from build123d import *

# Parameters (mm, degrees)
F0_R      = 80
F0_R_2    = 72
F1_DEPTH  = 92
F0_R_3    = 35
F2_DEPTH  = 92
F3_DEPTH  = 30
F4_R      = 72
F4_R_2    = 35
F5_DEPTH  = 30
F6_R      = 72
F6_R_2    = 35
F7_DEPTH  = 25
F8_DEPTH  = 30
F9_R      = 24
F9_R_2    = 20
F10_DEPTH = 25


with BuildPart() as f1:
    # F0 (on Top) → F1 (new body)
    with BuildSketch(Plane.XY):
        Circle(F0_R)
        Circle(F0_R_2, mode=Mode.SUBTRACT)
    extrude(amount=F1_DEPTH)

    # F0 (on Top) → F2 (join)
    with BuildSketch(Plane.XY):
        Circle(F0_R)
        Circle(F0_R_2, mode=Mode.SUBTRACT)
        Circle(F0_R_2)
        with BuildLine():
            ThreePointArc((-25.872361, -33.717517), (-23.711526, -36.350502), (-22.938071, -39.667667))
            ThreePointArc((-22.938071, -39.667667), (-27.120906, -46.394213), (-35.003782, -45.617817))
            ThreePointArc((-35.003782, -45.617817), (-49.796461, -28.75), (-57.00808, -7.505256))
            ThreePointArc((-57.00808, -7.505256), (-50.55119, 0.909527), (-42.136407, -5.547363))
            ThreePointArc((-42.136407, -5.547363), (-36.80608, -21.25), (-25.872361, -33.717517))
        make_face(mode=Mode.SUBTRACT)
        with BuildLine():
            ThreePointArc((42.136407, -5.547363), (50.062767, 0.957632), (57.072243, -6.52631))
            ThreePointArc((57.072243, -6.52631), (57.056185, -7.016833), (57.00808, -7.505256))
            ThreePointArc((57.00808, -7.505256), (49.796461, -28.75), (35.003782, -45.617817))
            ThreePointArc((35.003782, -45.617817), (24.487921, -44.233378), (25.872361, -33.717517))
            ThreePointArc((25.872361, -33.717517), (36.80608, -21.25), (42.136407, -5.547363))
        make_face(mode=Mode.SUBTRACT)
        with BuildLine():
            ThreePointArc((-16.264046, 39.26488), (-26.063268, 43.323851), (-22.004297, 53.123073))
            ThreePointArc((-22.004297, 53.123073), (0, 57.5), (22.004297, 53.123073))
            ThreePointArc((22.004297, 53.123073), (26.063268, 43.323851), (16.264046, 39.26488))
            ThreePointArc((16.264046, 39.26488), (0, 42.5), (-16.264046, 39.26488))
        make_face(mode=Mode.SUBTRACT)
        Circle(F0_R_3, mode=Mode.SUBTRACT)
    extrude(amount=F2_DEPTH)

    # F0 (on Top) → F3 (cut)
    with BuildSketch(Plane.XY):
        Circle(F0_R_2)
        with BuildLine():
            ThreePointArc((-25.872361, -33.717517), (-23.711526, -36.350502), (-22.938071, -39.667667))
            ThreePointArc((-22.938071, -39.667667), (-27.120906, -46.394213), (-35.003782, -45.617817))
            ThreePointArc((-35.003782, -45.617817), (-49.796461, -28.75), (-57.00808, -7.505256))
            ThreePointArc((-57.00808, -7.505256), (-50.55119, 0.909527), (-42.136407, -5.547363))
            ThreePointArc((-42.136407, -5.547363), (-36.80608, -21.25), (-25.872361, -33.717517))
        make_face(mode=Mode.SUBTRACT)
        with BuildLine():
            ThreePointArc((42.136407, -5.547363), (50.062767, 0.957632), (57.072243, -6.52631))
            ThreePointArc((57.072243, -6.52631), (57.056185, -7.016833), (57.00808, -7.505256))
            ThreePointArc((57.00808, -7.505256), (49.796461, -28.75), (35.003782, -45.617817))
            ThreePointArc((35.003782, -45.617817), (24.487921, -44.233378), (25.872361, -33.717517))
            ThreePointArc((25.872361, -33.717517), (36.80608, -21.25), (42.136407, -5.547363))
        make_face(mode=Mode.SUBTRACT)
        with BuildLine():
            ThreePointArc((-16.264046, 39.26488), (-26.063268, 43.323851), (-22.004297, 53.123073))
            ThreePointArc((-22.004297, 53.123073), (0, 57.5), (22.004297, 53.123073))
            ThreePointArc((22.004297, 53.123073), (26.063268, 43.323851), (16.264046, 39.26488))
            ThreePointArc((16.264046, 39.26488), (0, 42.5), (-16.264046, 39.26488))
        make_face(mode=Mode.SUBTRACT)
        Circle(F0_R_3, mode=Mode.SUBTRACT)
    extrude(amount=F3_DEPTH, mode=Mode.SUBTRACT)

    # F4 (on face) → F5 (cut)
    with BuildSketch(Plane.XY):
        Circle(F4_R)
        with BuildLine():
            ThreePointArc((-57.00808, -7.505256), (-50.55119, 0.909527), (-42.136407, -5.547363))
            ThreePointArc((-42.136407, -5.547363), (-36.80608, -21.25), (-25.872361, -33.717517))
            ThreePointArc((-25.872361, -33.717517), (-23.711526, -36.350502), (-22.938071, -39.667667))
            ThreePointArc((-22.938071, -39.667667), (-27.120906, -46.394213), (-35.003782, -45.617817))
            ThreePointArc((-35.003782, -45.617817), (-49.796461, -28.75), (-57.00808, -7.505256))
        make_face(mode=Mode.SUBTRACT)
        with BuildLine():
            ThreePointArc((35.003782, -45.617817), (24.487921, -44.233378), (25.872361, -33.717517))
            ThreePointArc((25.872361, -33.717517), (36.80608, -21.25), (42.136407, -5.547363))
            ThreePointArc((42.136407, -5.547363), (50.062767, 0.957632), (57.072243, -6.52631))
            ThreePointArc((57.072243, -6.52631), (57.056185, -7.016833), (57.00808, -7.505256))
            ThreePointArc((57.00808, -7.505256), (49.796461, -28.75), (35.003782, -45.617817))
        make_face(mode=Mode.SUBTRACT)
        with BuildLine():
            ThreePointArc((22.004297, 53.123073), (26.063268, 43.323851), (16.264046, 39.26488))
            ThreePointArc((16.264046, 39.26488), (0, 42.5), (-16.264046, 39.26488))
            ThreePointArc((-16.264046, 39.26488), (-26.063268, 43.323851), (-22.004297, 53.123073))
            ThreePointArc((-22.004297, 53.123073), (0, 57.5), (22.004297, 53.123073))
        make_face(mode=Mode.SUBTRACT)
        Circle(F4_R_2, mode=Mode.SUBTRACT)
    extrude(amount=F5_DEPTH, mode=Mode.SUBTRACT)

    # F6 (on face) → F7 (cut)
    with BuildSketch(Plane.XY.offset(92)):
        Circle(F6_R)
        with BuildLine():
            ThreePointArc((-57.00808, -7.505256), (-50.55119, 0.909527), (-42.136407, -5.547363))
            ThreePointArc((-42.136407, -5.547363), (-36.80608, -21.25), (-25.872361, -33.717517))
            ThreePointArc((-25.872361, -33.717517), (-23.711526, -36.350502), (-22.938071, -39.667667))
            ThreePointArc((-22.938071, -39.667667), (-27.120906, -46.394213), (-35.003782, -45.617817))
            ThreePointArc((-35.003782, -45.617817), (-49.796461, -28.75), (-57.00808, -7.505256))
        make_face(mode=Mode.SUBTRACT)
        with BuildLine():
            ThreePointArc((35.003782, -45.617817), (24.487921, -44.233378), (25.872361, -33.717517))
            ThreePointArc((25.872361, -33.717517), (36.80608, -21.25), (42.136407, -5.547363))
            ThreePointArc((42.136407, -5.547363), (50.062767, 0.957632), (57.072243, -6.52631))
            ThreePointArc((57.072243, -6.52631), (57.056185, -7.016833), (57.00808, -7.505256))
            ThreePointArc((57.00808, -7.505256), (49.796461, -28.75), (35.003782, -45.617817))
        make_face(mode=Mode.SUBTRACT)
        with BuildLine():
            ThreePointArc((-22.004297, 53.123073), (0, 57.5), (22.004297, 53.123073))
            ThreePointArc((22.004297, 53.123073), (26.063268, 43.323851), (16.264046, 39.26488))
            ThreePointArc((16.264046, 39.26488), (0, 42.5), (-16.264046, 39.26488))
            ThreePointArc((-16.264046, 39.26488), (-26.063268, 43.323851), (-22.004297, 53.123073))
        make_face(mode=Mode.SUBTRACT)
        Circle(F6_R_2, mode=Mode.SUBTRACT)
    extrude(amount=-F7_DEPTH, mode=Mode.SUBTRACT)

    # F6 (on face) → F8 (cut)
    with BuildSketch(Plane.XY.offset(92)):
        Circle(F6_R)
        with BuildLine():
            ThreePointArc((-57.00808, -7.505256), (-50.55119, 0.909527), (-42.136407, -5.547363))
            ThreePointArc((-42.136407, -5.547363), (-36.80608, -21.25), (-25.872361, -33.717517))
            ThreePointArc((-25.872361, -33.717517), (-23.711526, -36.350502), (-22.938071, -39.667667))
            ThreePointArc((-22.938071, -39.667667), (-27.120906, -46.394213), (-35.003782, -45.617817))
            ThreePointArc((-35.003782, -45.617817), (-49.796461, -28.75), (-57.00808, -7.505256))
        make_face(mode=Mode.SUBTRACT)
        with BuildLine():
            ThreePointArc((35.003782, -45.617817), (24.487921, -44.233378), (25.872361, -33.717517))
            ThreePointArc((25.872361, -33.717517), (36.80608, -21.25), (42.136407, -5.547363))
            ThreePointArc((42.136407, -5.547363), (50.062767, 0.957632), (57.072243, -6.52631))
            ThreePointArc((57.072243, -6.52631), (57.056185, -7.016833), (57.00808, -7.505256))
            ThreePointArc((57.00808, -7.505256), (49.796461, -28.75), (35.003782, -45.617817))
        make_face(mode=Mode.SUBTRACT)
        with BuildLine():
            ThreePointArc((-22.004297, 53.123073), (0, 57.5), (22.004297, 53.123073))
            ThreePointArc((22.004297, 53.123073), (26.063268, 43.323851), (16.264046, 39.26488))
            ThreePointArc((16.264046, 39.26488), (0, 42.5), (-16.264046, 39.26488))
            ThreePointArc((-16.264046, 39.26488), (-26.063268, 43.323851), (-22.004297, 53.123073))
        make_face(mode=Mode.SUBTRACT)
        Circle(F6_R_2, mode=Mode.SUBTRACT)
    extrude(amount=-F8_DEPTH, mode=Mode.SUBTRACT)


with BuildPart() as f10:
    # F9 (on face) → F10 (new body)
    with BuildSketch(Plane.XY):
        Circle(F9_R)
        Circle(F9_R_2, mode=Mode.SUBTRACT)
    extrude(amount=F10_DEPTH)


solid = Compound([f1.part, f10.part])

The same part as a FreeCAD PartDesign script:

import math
import FreeCAD as App
import Part
import Sketcher

doc = App.newDocument("Part")
body = doc.addObject("PartDesign::Body", "Body")

# Sketch on XY plane
sketch1 = body.newObject("Sketcher::SketchObject", "Sketch")
sketch1.AttachmentSupport = (doc.getObject("XY_Plane"), [""])
sketch1.MapMode = "FlatFace"
sketch1.addGeometry(Part.Circle(App.Vector(0, 0, 0), App.Vector(0, 0, 1), 80), False)
sketch1.addGeometry(Part.Circle(App.Vector(0, 0, 0), App.Vector(0, 0, 1), 72), False)
sketch1.addConstraint(Sketcher.Constraint("Coincident", 0, 3, -1, 1))
sketch1.addConstraint(Sketcher.Constraint("Coincident", 1, 3, -1, 1))
sketch1.addConstraint(Sketcher.Constraint("Diameter", 0, 160.0))
sketch1.addConstraint(Sketcher.Constraint("Diameter", 1, 144.0))
pad1 = body.newObject("PartDesign::Pad", "Pad")
pad1.Profile = sketch1
pad1.Length = 92

# Sketch on XY plane
sketch2 = body.newObject("Sketcher::SketchObject", "Sketch001")
sketch2.AttachmentSupport = (doc.getObject("XY_Plane"), [""])
sketch2.MapMode = "FlatFace"
sketch2.addGeometry(Part.Circle(App.Vector(0, 0, 0), App.Vector(0, 0, 1), 80), False)
sketch2.addGeometry(Part.ArcOfCircle(Part.Circle(App.Vector(0, 0, 0), App.Vector(0, 0, 1), 42.5), math.radians(-172.5), math.radians(-127.5)), False)
sketch2.addGeometry(Part.ArcOfCircle(Part.Circle(App.Vector(-30.438074, -39.667669, 0), App.Vector(0, 0, 1), 7.500003), math.radians(0.000015), math.radians(52.499997)), False)
sketch2.addGeometry(Part.ArcOfCircle(Part.Circle(App.Vector(-30.438071, -39.667667, 0), App.Vector(0, 0, 1), 7.5), math.radians(-127.500005), math.radians(0.000003)), False)
sketch2.addGeometry(Part.ArcOfCircle(Part.Circle(App.Vector(-0.000001, 0, 0), App.Vector(0, 0, 1), 57.499999), math.radians(-172.5), math.radians(-127.499999)), False)
sketch2.addGeometry(Part.ArcOfCircle(Part.Circle(App.Vector(-49.572243, -6.526309, 0), App.Vector(0, 0, 1), 7.5), math.radians(7.5), math.radians(187.5)), False)
sketch2.addGeometry(Part.ArcOfCircle(Part.Circle(App.Vector(0, 0, 0), App.Vector(0, 0, 1), 42.5), math.radians(-52.5), math.radians(-7.5)), False)
sketch2.addGeometry(Part.ArcOfCircle(Part.Circle(App.Vector(49.572243, -6.52631, 0), App.Vector(0, 0, 1), 7.5), math.radians(-0.000002), math.radians(172.499998)), False)
sketch2.addGeometry(Part.ArcOfCircle(Part.Circle(App.Vector(49.572152, -6.526308, 0), App.Vector(0, 0, 1), 7.500091), math.radians(-7.499923), math.radians(-0.000017)), False)
sketch2.addGeometry(Part.ArcOfCircle(Part.Circle(App.Vector(0.000001, 0, 0), App.Vector(0, 0, 1), 57.499999), math.radians(-52.500001), math.radians(-7.5)), False)
sketch2.addGeometry(Part.ArcOfCircle(Part.Circle(App.Vector(30.438071, -39.667667, 0), App.Vector(0, 0, 1), 7.5), math.radians(127.499994), math.radians(307.500004)), False)
sketch2.addGeometry(Part.Circle(App.Vector(0, 0, 0), App.Vector(0, 0, 1), 35), False)
sketch2.addGeometry(Part.ArcOfCircle(Part.Circle(App.Vector(0, 0.000001, 0), App.Vector(0, 0, 1), 42.499999), math.radians(67.499999), math.radians(112.500001)), False)
sketch2.addGeometry(Part.ArcOfCircle(Part.Circle(App.Vector(-19.134172, 46.193976, 0), App.Vector(0, 0, 1), 7.5), math.radians(112.499998), math.radians(292.499998)), False)
sketch2.addGeometry(Part.ArcOfCircle(Part.Circle(App.Vector(0, 0.000003, 0), App.Vector(0, 0, 1), 57.499997), math.radians(67.499999), math.radians(112.500001)), False)
sketch2.addGeometry(Part.ArcOfCircle(Part.Circle(App.Vector(19.134172, 46.193976, 0), App.Vector(0, 0, 1), 7.5), math.radians(-112.499998), math.radians(67.500002)), False)
sketch2.addConstraint(Sketcher.Constraint("Coincident", 1, 2, 2, 2))
sketch2.addConstraint(Sketcher.Constraint("Coincident", 2, 1, 3, 2))
sketch2.addConstraint(Sketcher.Constraint("Coincident", 3, 1, 4, 2))
sketch2.addConstraint(Sketcher.Constraint("Coincident", 4, 1, 5, 2))
sketch2.addConstraint(Sketcher.Constraint("Coincident", 5, 1, 1, 1))
sketch2.addConstraint(Sketcher.Constraint("Coincident", 6, 2, 7, 2))
sketch2.addConstraint(Sketcher.Constraint("Coincident", 7, 1, 8, 2))
sketch2.addConstraint(Sketcher.Constraint("Coincident", 8, 1, 9, 2))
sketch2.addConstraint(Sketcher.Constraint("Coincident", 9, 1, 10, 2))
sketch2.addConstraint(Sketcher.Constraint("Coincident", 10, 1, 6, 1))
sketch2.addConstraint(Sketcher.Constraint("Coincident", 12, 2, 13, 2))
sketch2.addConstraint(Sketcher.Constraint("Coincident", 13, 1, 14, 2))
sketch2.addConstraint(Sketcher.Constraint("Coincident", 14, 1, 15, 2))
sketch2.addConstraint(Sketcher.Constraint("Coincident", 15, 1, 12, 1))
sketch2.addConstraint(Sketcher.Constraint("Coincident", 0, 3, -1, 1))
sketch2.addConstraint(Sketcher.Constraint("Coincident", 1, 3, -1, 1))
sketch2.addConstraint(Sketcher.Constraint("Coincident", 4, 3, -1, 1))
sketch2.addConstraint(Sketcher.Constraint("Coincident", 6, 3, -1, 1))
sketch2.addConstraint(Sketcher.Constraint("Coincident", 9, 3, -1, 1))
sketch2.addConstraint(Sketcher.Constraint("Coincident", 11, 3, -1, 1))
sketch2.addConstraint(Sketcher.Constraint("Coincident", 12, 3, -1, 1))
sketch2.addConstraint(Sketcher.Constraint("Coincident", 14, 3, -1, 1))
sketch2.addConstraint(Sketcher.Constraint("Coincident", 3, 3, 2, 3))
sketch2.addConstraint(Sketcher.Constraint("Diameter", 0, 160.0))
sketch2.addConstraint(Sketcher.Constraint("Diameter", 11, 70.0))
sketch2.addConstraint(Sketcher.Constraint("Radius", 1, 42.5))
sketch2.addConstraint(Sketcher.Constraint("Radius", 3, 7.5))
sketch2.addConstraint(Sketcher.Constraint("Radius", 6, 42.5))
sketch2.addConstraint(Sketcher.Constraint("Radius", 7, 7.5))
sketch2.addConstraint(Sketcher.Constraint("Radius", 9, 57.499999))
sketch2.addConstraint(Sketcher.Constraint("Radius", 12, 42.499999))
sketch2.addConstraint(Sketcher.Constraint("Radius", 13, 7.5))
sketch2.addConstraint(Sketcher.Constraint("Radius", 8, 7.500091))
sketch2.addConstraint(Sketcher.Constraint("DistanceY", 3, 1, 1, 2, 11.9003))
sketch2.addConstraint(Sketcher.Constraint("DistanceX", 9, 1, 8, 1, 22.004298))
sketch2.addConstraint(Sketcher.Constraint("DistanceY", 9, 1, 10, 1, 11.9003))
sketch2.addConstraint(Sketcher.Constraint("DistanceY", 2, 3, -1, 1, 39.667669))
sketch2.addConstraint(Sketcher.Constraint("DistanceY", 5, 3, -1, 1, 6.526309))
sketch2.addConstraint(Sketcher.Constraint("DistanceY", 7, 3, -1, 1, 6.52631))
sketch2.addConstraint(Sketcher.Constraint("DistanceX", -1, 1, 10, 3, 30.438071))
sketch2.addConstraint(Sketcher.Constraint("DistanceX", 13, 3, -1, 1, 19.134172))
sketch2.addConstraint(Sketcher.Constraint("DistanceX", -1, 1, 15, 3, 19.134172))
sketch2.addConstraint(Sketcher.Constraint("DistanceX", 1, 2, -1, 1, 25.872361))
sketch2.addConstraint(Sketcher.Constraint("DistanceX", 4, 1, -1, 1, 57.00808))
sketch2.addConstraint(Sketcher.Constraint("DistanceY", 7, 1, -1, 1, 6.52631))
sketch2.addConstraint(Sketcher.Constraint("DistanceX", -1, 1, 8, 1, 57.00808))
sketch2.addConstraint(Sketcher.Constraint("DistanceY", -1, 1, 12, 2, 39.26488))
sketch2.addConstraint(Sketcher.Constraint("DistanceY", -1, 1, 15, 1, 39.26488))
sketch2.addConstraint(Sketcher.Constraint("DistanceY", 2, 1, 1, 2, 5.95015))
sketch2.addConstraint(Sketcher.Constraint("DistanceX", 13, 1, 12, 2, 5.740251))
sketch2.addConstraint(Sketcher.Constraint("DistanceX", 13, 3, 14, 1, 41.138468))
sketch2.addConstraint(Sketcher.Constraint("DistanceX", 5, 1, -1, 1, 42.136407))
sketch2.addConstraint(Sketcher.Constraint("DistanceX", -1, 1, 6, 2, 42.136407))
pad2 = body.newObject("PartDesign::Pad", "Pad001")
pad2.Profile = sketch2
pad2.Length = 92

# Sketch on XY plane
sketch3 = body.newObject("Sketcher::SketchObject", "Sketch002")
sketch3.AttachmentSupport = (doc.getObject("XY_Plane"), [""])
sketch3.MapMode = "FlatFace"
sketch3.addGeometry(Part.Circle(App.Vector(0, 0, 0), App.Vector(0, 0, 1), 72), False)
sketch3.addGeometry(Part.ArcOfCircle(Part.Circle(App.Vector(0, 0, 0), App.Vector(0, 0, 1), 42.5), math.radians(-172.5), math.radians(-127.5)), False)
sketch3.addGeometry(Part.ArcOfCircle(Part.Circle(App.Vector(-30.438074, -39.667669, 0), App.Vector(0, 0, 1), 7.500003), math.radians(0.000015), math.radians(52.499997)), False)
sketch3.addGeometry(Part.ArcOfCircle(Part.Circle(App.Vector(-30.438071, -39.667667, 0), App.Vector(0, 0, 1), 7.5), math.radians(-127.500005), math.radians(0.000003)), False)
sketch3.addGeometry(Part.ArcOfCircle(Part.Circle(App.Vector(-0.000001, 0, 0), App.Vector(0, 0, 1), 57.499999), math.radians(-172.5), math.radians(-127.499999)), False)
sketch3.addGeometry(Part.ArcOfCircle(Part.Circle(App.Vector(-49.572243, -6.526309, 0), App.Vector(0, 0, 1), 7.5), math.radians(7.5), math.radians(187.5)), False)
sketch3.addGeometry(Part.ArcOfCircle(Part.Circle(App.Vector(0, 0, 0), App.Vector(0, 0, 1), 42.5), math.radians(-52.5), math.radians(-7.5)), False)
sketch3.addGeometry(Part.ArcOfCircle(Part.Circle(App.Vector(49.572243, -6.52631, 0), App.Vector(0, 0, 1), 7.5), math.radians(-0.000002), math.radians(172.499998)), False)
sketch3.addGeometry(Part.ArcOfCircle(Part.Circle(App.Vector(49.572152, -6.526308, 0), App.Vector(0, 0, 1), 7.500091), math.radians(-7.499923), math.radians(-0.000017)), False)
sketch3.addGeometry(Part.ArcOfCircle(Part.Circle(App.Vector(0.000001, 0, 0), App.Vector(0, 0, 1), 57.499999), math.radians(-52.500001), math.radians(-7.5)), False)
sketch3.addGeometry(Part.ArcOfCircle(Part.Circle(App.Vector(30.438071, -39.667667, 0), App.Vector(0, 0, 1), 7.5), math.radians(127.499994), math.radians(307.500004)), False)
sketch3.addGeometry(Part.Circle(App.Vector(0, 0, 0), App.Vector(0, 0, 1), 35), False)
sketch3.addGeometry(Part.ArcOfCircle(Part.Circle(App.Vector(0, 0.000001, 0), App.Vector(0, 0, 1), 42.499999), math.radians(67.499999), math.radians(112.500001)), False)
sketch3.addGeometry(Part.ArcOfCircle(Part.Circle(App.Vector(-19.134172, 46.193976, 0), App.Vector(0, 0, 1), 7.5), math.radians(112.499998), math.radians(292.499998)), False)
sketch3.addGeometry(Part.ArcOfCircle(Part.Circle(App.Vector(0, 0.000003, 0), App.Vector(0, 0, 1), 57.499997), math.radians(67.499999), math.radians(112.500001)), False)
sketch3.addGeometry(Part.ArcOfCircle(Part.Circle(App.Vector(19.134172, 46.193976, 0), App.Vector(0, 0, 1), 7.5), math.radians(-112.499998), math.radians(67.500002)), False)
sketch3.addConstraint(Sketcher.Constraint("Coincident", 1, 2, 2, 2))
sketch3.addConstraint(Sketcher.Constraint("Coincident", 2, 1, 3, 2))
sketch3.addConstraint(Sketcher.Constraint("Coincident", 3, 1, 4, 2))
sketch3.addConstraint(Sketcher.Constraint("Coincident", 4, 1, 5, 2))
sketch3.addConstraint(Sketcher.Constraint("Coincident", 5, 1, 1, 1))
sketch3.addConstraint(Sketcher.Constraint("Coincident", 6, 2, 7, 2))
sketch3.addConstraint(Sketcher.Constraint("Coincident", 7, 1, 8, 2))
sketch3.addConstraint(Sketcher.Constraint("Coincident", 8, 1, 9, 2))
sketch3.addConstraint(Sketcher.Constraint("Coincident", 9, 1, 10, 2))
sketch3.addConstraint(Sketcher.Constraint("Coincident", 10, 1, 6, 1))
sketch3.addConstraint(Sketcher.Constraint("Coincident", 12, 2, 13, 2))
sketch3.addConstraint(Sketcher.Constraint("Coincident", 13, 1, 14, 2))
sketch3.addConstraint(Sketcher.Constraint("Coincident", 14, 1, 15, 2))
sketch3.addConstraint(Sketcher.Constraint("Coincident", 15, 1, 12, 1))
sketch3.addConstraint(Sketcher.Constraint("Coincident", 0, 3, -1, 1))
sketch3.addConstraint(Sketcher.Constraint("Coincident", 1, 3, -1, 1))
sketch3.addConstraint(Sketcher.Constraint("Coincident", 4, 3, -1, 1))
sketch3.addConstraint(Sketcher.Constraint("Coincident", 6, 3, -1, 1))
sketch3.addConstraint(Sketcher.Constraint("Coincident", 9, 3, -1, 1))
sketch3.addConstraint(Sketcher.Constraint("Coincident", 11, 3, -1, 1))
sketch3.addConstraint(Sketcher.Constraint("Coincident", 12, 3, -1, 1))
sketch3.addConstraint(Sketcher.Constraint("Coincident", 14, 3, -1, 1))
sketch3.addConstraint(Sketcher.Constraint("Coincident", 3, 3, 2, 3))
sketch3.addConstraint(Sketcher.Constraint("Diameter", 0, 144.0))
sketch3.addConstraint(Sketcher.Constraint("Diameter", 11, 70.0))
sketch3.addConstraint(Sketcher.Constraint("Radius", 1, 42.5))
sketch3.addConstraint(Sketcher.Constraint("Radius", 3, 7.5))
sketch3.addConstraint(Sketcher.Constraint("Radius", 6, 42.5))
sketch3.addConstraint(Sketcher.Constraint("Radius", 7, 7.5))
sketch3.addConstraint(Sketcher.Constraint("Radius", 9, 57.499999))
sketch3.addConstraint(Sketcher.Constraint("Radius", 12, 42.499999))
sketch3.addConstraint(Sketcher.Constraint("Radius", 13, 7.5))
sketch3.addConstraint(Sketcher.Constraint("Radius", 8, 7.500091))
sketch3.addConstraint(Sketcher.Constraint("DistanceY", 3, 1, 1, 2, 11.9003))
sketch3.addConstraint(Sketcher.Constraint("DistanceX", 9, 1, 8, 1, 22.004298))
sketch3.addConstraint(Sketcher.Constraint("DistanceY", 9, 1, 10, 1, 11.9003))
sketch3.addConstraint(Sketcher.Constraint("DistanceY", 2, 3, -1, 1, 39.667669))
sketch3.addConstraint(Sketcher.Constraint("DistanceY", 5, 3, -1, 1, 6.526309))
sketch3.addConstraint(Sketcher.Constraint("DistanceY", 7, 3, -1, 1, 6.52631))
sketch3.addConstraint(Sketcher.Constraint("DistanceX", -1, 1, 10, 3, 30.438071))
sketch3.addConstraint(Sketcher.Constraint("DistanceX", 13, 3, -1, 1, 19.134172))
sketch3.addConstraint(Sketcher.Constraint("DistanceX", -1, 1, 15, 3, 19.134172))
sketch3.addConstraint(Sketcher.Constraint("DistanceX", 1, 2, -1, 1, 25.872361))
sketch3.addConstraint(Sketcher.Constraint("DistanceX", 4, 1, -1, 1, 57.00808))
sketch3.addConstraint(Sketcher.Constraint("DistanceY", 7, 1, -1, 1, 6.52631))
sketch3.addConstraint(Sketcher.Constraint("DistanceX", -1, 1, 8, 1, 57.00808))
sketch3.addConstraint(Sketcher.Constraint("DistanceY", -1, 1, 12, 2, 39.26488))
sketch3.addConstraint(Sketcher.Constraint("DistanceY", -1, 1, 15, 1, 39.26488))
sketch3.addConstraint(Sketcher.Constraint("DistanceY", 2, 1, 1, 2, 5.95015))
sketch3.addConstraint(Sketcher.Constraint("DistanceX", 13, 1, 12, 2, 5.740251))
sketch3.addConstraint(Sketcher.Constraint("DistanceX", 13, 3, 14, 1, 41.138468))
sketch3.addConstraint(Sketcher.Constraint("DistanceX", 5, 1, -1, 1, 42.136407))
sketch3.addConstraint(Sketcher.Constraint("DistanceX", -1, 1, 6, 2, 42.136407))
pocket1 = body.newObject("PartDesign::Pocket", "Pocket")
pocket1.Profile = sketch3
pocket1.Length = 30
pocket1.Reversed = True

# Sketch on XY plane
sketch4 = body.newObject("Sketcher::SketchObject", "Sketch003")
sketch4.AttachmentSupport = (doc.getObject("XY_Plane"), [""])
sketch4.MapMode = "FlatFace"
sketch4.addGeometry(Part.Circle(App.Vector(0, 0, 0), App.Vector(0, 0, 1), 72), False)
sketch4.addGeometry(Part.ArcOfCircle(Part.Circle(App.Vector(-0.000001, 0, 0), App.Vector(0, 0, 1), 57.499999), math.radians(-172.5), math.radians(-127.499999)), False)
sketch4.addGeometry(Part.ArcOfCircle(Part.Circle(App.Vector(-49.572243, -6.526309, 0), App.Vector(0, 0, 1), 7.5), math.radians(7.5), math.radians(187.5)), False)
sketch4.addGeometry(Part.ArcOfCircle(Part.Circle(App.Vector(0, 0, 0), App.Vector(0, 0, 1), 42.5), math.radians(-172.5), math.radians(-127.5)), False)
sketch4.addGeometry(Part.ArcOfCircle(Part.Circle(App.Vector(-30.438074, -39.667669, 0), App.Vector(0, 0, 1), 7.500003), math.radians(0.000015), math.radians(52.499997)), False)
sketch4.addGeometry(Part.ArcOfCircle(Part.Circle(App.Vector(-30.438071, -39.667667, 0), App.Vector(0, 0, 1), 7.5), math.radians(-127.500005), math.radians(0.000003)), False)
sketch4.addGeometry(Part.ArcOfCircle(Part.Circle(App.Vector(0.000001, 0, 0), App.Vector(0, 0, 1), 57.499999), math.radians(-52.500001), math.radians(-7.5)), False)
sketch4.addGeometry(Part.ArcOfCircle(Part.Circle(App.Vector(30.438071, -39.667667, 0), App.Vector(0, 0, 1), 7.5), math.radians(127.499994), math.radians(307.500004)), False)
sketch4.addGeometry(Part.ArcOfCircle(Part.Circle(App.Vector(0, 0, 0), App.Vector(0, 0, 1), 42.5), math.radians(-52.5), math.radians(-7.5)), False)
sketch4.addGeometry(Part.ArcOfCircle(Part.Circle(App.Vector(49.572243, -6.52631, 0), App.Vector(0, 0, 1), 7.5), math.radians(-0.000002), math.radians(172.499998)), False)
sketch4.addGeometry(Part.ArcOfCircle(Part.Circle(App.Vector(49.572152, -6.526308, 0), App.Vector(0, 0, 1), 7.500091), math.radians(-7.499923), math.radians(-0.000017)), False)
sketch4.addGeometry(Part.Circle(App.Vector(0, 0, 0), App.Vector(0, 0, 1), 35), False)
sketch4.addGeometry(Part.ArcOfCircle(Part.Circle(App.Vector(0, 0.000003, 0), App.Vector(0, 0, 1), 57.499997), math.radians(67.499999), math.radians(112.500001)), False)
sketch4.addGeometry(Part.ArcOfCircle(Part.Circle(App.Vector(19.134172, 46.193976, 0), App.Vector(0, 0, 1), 7.5), math.radians(-112.499998), math.radians(67.500002)), False)
sketch4.addGeometry(Part.ArcOfCircle(Part.Circle(App.Vector(0, 0.000001, 0), App.Vector(0, 0, 1), 42.499999), math.radians(67.499999), math.radians(112.500001)), False)
sketch4.addGeometry(Part.ArcOfCircle(Part.Circle(App.Vector(-19.134172, 46.193976, 0), App.Vector(0, 0, 1), 7.5), math.radians(112.499998), math.radians(292.499998)), False)
sketch4.addConstraint(Sketcher.Constraint("Coincident", 1, 1, 2, 2))
sketch4.addConstraint(Sketcher.Constraint("Coincident", 2, 1, 3, 1))
sketch4.addConstraint(Sketcher.Constraint("Coincident", 3, 2, 4, 2))
sketch4.addConstraint(Sketcher.Constraint("Coincident", 4, 1, 5, 2))
sketch4.addConstraint(Sketcher.Constraint("Coincident", 5, 1, 1, 2))
sketch4.addConstraint(Sketcher.Constraint("Coincident", 6, 1, 7, 2))
sketch4.addConstraint(Sketcher.Constraint("Coincident", 7, 1, 8, 1))
sketch4.addConstraint(Sketcher.Constraint("Coincident", 8, 2, 9, 2))
sketch4.addConstraint(Sketcher.Constraint("Coincident", 9, 1, 10, 2))
sketch4.addConstraint(Sketcher.Constraint("Coincident", 10, 1, 6, 2))
sketch4.addConstraint(Sketcher.Constraint("Coincident", 12, 1, 13, 2))
sketch4.addConstraint(Sketcher.Constraint("Coincident", 13, 1, 14, 1))
sketch4.addConstraint(Sketcher.Constraint("Coincident", 14, 2, 15, 2))
sketch4.addConstraint(Sketcher.Constraint("Coincident", 15, 1, 12, 2))
sketch4.addConstraint(Sketcher.Constraint("Coincident", 0, 3, -1, 1))
sketch4.addConstraint(Sketcher.Constraint("Coincident", 1, 3, -1, 1))
sketch4.addConstraint(Sketcher.Constraint("Coincident", 3, 3, -1, 1))
sketch4.addConstraint(Sketcher.Constraint("Coincident", 6, 3, -1, 1))
sketch4.addConstraint(Sketcher.Constraint("Coincident", 8, 3, -1, 1))
sketch4.addConstraint(Sketcher.Constraint("Coincident", 11, 3, -1, 1))
sketch4.addConstraint(Sketcher.Constraint("Coincident", 12, 3, -1, 1))
sketch4.addConstraint(Sketcher.Constraint("Coincident", 14, 3, -1, 1))
sketch4.addConstraint(Sketcher.Constraint("Coincident", 5, 3, 4, 3))
sketch4.addConstraint(Sketcher.Constraint("Diameter", 0, 144.0))
sketch4.addConstraint(Sketcher.Constraint("Diameter", 11, 70.0))
sketch4.addConstraint(Sketcher.Constraint("Radius", 1, 57.499999))
sketch4.addConstraint(Sketcher.Constraint("Radius", 2, 7.5))
sketch4.addConstraint(Sketcher.Constraint("Radius", 6, 57.499999))
sketch4.addConstraint(Sketcher.Constraint("Radius", 7, 7.5))
sketch4.addConstraint(Sketcher.Constraint("Radius", 9, 7.5))
sketch4.addConstraint(Sketcher.Constraint("Radius", 13, 7.5))
sketch4.addConstraint(Sketcher.Constraint("Radius", 14, 42.499999))
sketch4.addConstraint(Sketcher.Constraint("Radius", 10, 7.500091))
sketch4.addConstraint(Sketcher.Constraint("DistanceY", 5, 1, 3, 2, 11.9003))
sketch4.addConstraint(Sketcher.Constraint("DistanceY", 6, 1, 7, 1, 11.9003))
sketch4.addConstraint(Sketcher.Constraint("DistanceY", 2, 3, -1, 1, 6.526309))
sketch4.addConstraint(Sketcher.Constraint("DistanceY", 4, 3, -1, 1, 39.667669))
sketch4.addConstraint(Sketcher.Constraint("DistanceX", -1, 1, 7, 3, 30.438071))
sketch4.addConstraint(Sketcher.Constraint("DistanceY", 9, 3, -1, 1, 6.52631))
sketch4.addConstraint(Sketcher.Constraint("DistanceX", -1, 1, 13, 3, 19.134172))
sketch4.addConstraint(Sketcher.Constraint("DistanceX", 15, 3, -1, 1, 19.134172))
sketch4.addConstraint(Sketcher.Constraint("DistanceX", 1, 1, -1, 1, 57.00808))
sketch4.addConstraint(Sketcher.Constraint("DistanceX", 3, 2, -1, 1, 25.872361))
sketch4.addConstraint(Sketcher.Constraint("DistanceX", -1, 1, 6, 1, 35.003782))
sketch4.addConstraint(Sketcher.Constraint("DistanceY", 9, 1, -1, 1, 6.52631))
sketch4.addConstraint(Sketcher.Constraint("DistanceX", -1, 1, 10, 1, 57.00808))
sketch4.addConstraint(Sketcher.Constraint("DistanceY", -1, 1, 13, 1, 39.26488))
sketch4.addConstraint(Sketcher.Constraint("DistanceY", -1, 1, 14, 2, 39.26488))
sketch4.addConstraint(Sketcher.Constraint("DistanceY", 4, 1, 3, 2, 5.95015))
sketch4.addConstraint(Sketcher.Constraint("DistanceX", 15, 3, 12, 1, 41.138468))
sketch4.addConstraint(Sketcher.Constraint("DistanceX", 15, 1, 14, 2, 5.740251))
sketch4.addConstraint(Sketcher.Constraint("DistanceX", 2, 1, -1, 1, 42.136407))
sketch4.addConstraint(Sketcher.Constraint("DistanceX", -1, 1, 8, 2, 42.136407))
pocket2 = body.newObject("PartDesign::Pocket", "Pocket001")
pocket2.Profile = sketch4
pocket2.Length = 30
pocket2.Reversed = True

# Sketch on XY plane
sketch5 = body.newObject("Sketcher::SketchObject", "Sketch004")
sketch5.AttachmentSupport = (doc.getObject("XY_Plane"), [""])
sketch5.MapMode = "FlatFace"
sketch5.AttachmentOffset = App.Placement(App.Vector(0, 0, 92), App.Rotation())
sketch5.addGeometry(Part.Circle(App.Vector(0, 0, 0), App.Vector(0, 0, 1), 72), False)
sketch5.addGeometry(Part.ArcOfCircle(Part.Circle(App.Vector(-0.000001, 0, 0), App.Vector(0, 0, 1), 57.499999), math.radians(-172.5), math.radians(-127.499999)), False)
sketch5.addGeometry(Part.ArcOfCircle(Part.Circle(App.Vector(-49.572243, -6.526309, 0), App.Vector(0, 0, 1), 7.5), math.radians(7.5), math.radians(187.5)), False)
sketch5.addGeometry(Part.ArcOfCircle(Part.Circle(App.Vector(0, 0, 0), App.Vector(0, 0, 1), 42.5), math.radians(-172.5), math.radians(-127.5)), False)
sketch5.addGeometry(Part.ArcOfCircle(Part.Circle(App.Vector(-30.438074, -39.667669, 0), App.Vector(0, 0, 1), 7.500003), math.radians(0.000015), math.radians(52.499997)), False)
sketch5.addGeometry(Part.ArcOfCircle(Part.Circle(App.Vector(-30.438071, -39.667667, 0), App.Vector(0, 0, 1), 7.5), math.radians(-127.500005), math.radians(0.000003)), False)
sketch5.addGeometry(Part.ArcOfCircle(Part.Circle(App.Vector(0.000001, 0, 0), App.Vector(0, 0, 1), 57.499999), math.radians(-52.500001), math.radians(-7.5)), False)
sketch5.addGeometry(Part.ArcOfCircle(Part.Circle(App.Vector(30.438071, -39.667667, 0), App.Vector(0, 0, 1), 7.5), math.radians(127.499994), math.radians(307.500004)), False)
sketch5.addGeometry(Part.ArcOfCircle(Part.Circle(App.Vector(0, 0, 0), App.Vector(0, 0, 1), 42.5), math.radians(-52.5), math.radians(-7.5)), False)
sketch5.addGeometry(Part.ArcOfCircle(Part.Circle(App.Vector(49.572243, -6.52631, 0), App.Vector(0, 0, 1), 7.5), math.radians(-0.000002), math.radians(172.499998)), False)
sketch5.addGeometry(Part.ArcOfCircle(Part.Circle(App.Vector(49.572152, -6.526308, 0), App.Vector(0, 0, 1), 7.500091), math.radians(-7.499923), math.radians(-0.000017)), False)
sketch5.addGeometry(Part.Circle(App.Vector(0, 0, 0), App.Vector(0, 0, 1), 35), False)
sketch5.addGeometry(Part.ArcOfCircle(Part.Circle(App.Vector(-19.134172, 46.193976, 0), App.Vector(0, 0, 1), 7.5), math.radians(112.499998), math.radians(292.499998)), False)
sketch5.addGeometry(Part.ArcOfCircle(Part.Circle(App.Vector(0, 0.000003, 0), App.Vector(0, 0, 1), 57.499997), math.radians(67.499999), math.radians(112.500001)), False)
sketch5.addGeometry(Part.ArcOfCircle(Part.Circle(App.Vector(19.134172, 46.193976, 0), App.Vector(0, 0, 1), 7.5), math.radians(-112.499998), math.radians(67.500002)), False)
sketch5.addGeometry(Part.ArcOfCircle(Part.Circle(App.Vector(0, 0.000001, 0), App.Vector(0, 0, 1), 42.499999), math.radians(67.499999), math.radians(112.500001)), False)
sketch5.addConstraint(Sketcher.Constraint("Coincident", 1, 1, 2, 2))
sketch5.addConstraint(Sketcher.Constraint("Coincident", 2, 1, 3, 1))
sketch5.addConstraint(Sketcher.Constraint("Coincident", 3, 2, 4, 2))
sketch5.addConstraint(Sketcher.Constraint("Coincident", 4, 1, 5, 2))
sketch5.addConstraint(Sketcher.Constraint("Coincident", 5, 1, 1, 2))
sketch5.addConstraint(Sketcher.Constraint("Coincident", 6, 1, 7, 2))
sketch5.addConstraint(Sketcher.Constraint("Coincident", 7, 1, 8, 1))
sketch5.addConstraint(Sketcher.Constraint("Coincident", 8, 2, 9, 2))
sketch5.addConstraint(Sketcher.Constraint("Coincident", 9, 1, 10, 2))
sketch5.addConstraint(Sketcher.Constraint("Coincident", 10, 1, 6, 2))
sketch5.addConstraint(Sketcher.Constraint("Coincident", 12, 1, 13, 2))
sketch5.addConstraint(Sketcher.Constraint("Coincident", 13, 1, 14, 2))
sketch5.addConstraint(Sketcher.Constraint("Coincident", 14, 1, 15, 1))
sketch5.addConstraint(Sketcher.Constraint("Coincident", 15, 2, 12, 2))
sketch5.addConstraint(Sketcher.Constraint("Coincident", 0, 3, -1, 1))
sketch5.addConstraint(Sketcher.Constraint("Coincident", 1, 3, -1, 1))
sketch5.addConstraint(Sketcher.Constraint("Coincident", 3, 3, -1, 1))
sketch5.addConstraint(Sketcher.Constraint("Coincident", 6, 3, -1, 1))
sketch5.addConstraint(Sketcher.Constraint("Coincident", 8, 3, -1, 1))
sketch5.addConstraint(Sketcher.Constraint("Coincident", 11, 3, -1, 1))
sketch5.addConstraint(Sketcher.Constraint("Coincident", 13, 3, -1, 1))
sketch5.addConstraint(Sketcher.Constraint("Coincident", 15, 3, -1, 1))
sketch5.addConstraint(Sketcher.Constraint("Coincident", 5, 3, 4, 3))
sketch5.addConstraint(Sketcher.Constraint("Diameter", 0, 144.0))
sketch5.addConstraint(Sketcher.Constraint("Diameter", 11, 70.0))
sketch5.addConstraint(Sketcher.Constraint("Radius", 1, 57.499999))
sketch5.addConstraint(Sketcher.Constraint("Radius", 2, 7.5))
sketch5.addConstraint(Sketcher.Constraint("Radius", 6, 57.499999))
sketch5.addConstraint(Sketcher.Constraint("Radius", 7, 7.5))
sketch5.addConstraint(Sketcher.Constraint("Radius", 9, 7.5))
sketch5.addConstraint(Sketcher.Constraint("Radius", 12, 7.5))
sketch5.addConstraint(Sketcher.Constraint("Radius", 15, 42.499999))
sketch5.addConstraint(Sketcher.Constraint("Radius", 10, 7.500091))
sketch5.addConstraint(Sketcher.Constraint("DistanceY", 5, 1, 3, 2, 11.9003))
sketch5.addConstraint(Sketcher.Constraint("DistanceY", 6, 1, 7, 1, 11.9003))
sketch5.addConstraint(Sketcher.Constraint("DistanceY", 2, 3, -1, 1, 6.526309))
sketch5.addConstraint(Sketcher.Constraint("DistanceY", 4, 3, -1, 1, 39.667669))
sketch5.addConstraint(Sketcher.Constraint("DistanceX", -1, 1, 7, 3, 30.438071))
sketch5.addConstraint(Sketcher.Constraint("DistanceY", 9, 3, -1, 1, 6.52631))
sketch5.addConstraint(Sketcher.Constraint("DistanceX", 12, 3, -1, 1, 19.134172))
sketch5.addConstraint(Sketcher.Constraint("DistanceX", -1, 1, 14, 3, 19.134172))
sketch5.addConstraint(Sketcher.Constraint("DistanceX", 1, 1, -1, 1, 57.00808))
sketch5.addConstraint(Sketcher.Constraint("DistanceX", 3, 2, -1, 1, 25.872361))
sketch5.addConstraint(Sketcher.Constraint("DistanceX", -1, 1, 6, 1, 35.003782))
sketch5.addConstraint(Sketcher.Constraint("DistanceY", 9, 1, -1, 1, 6.52631))
sketch5.addConstraint(Sketcher.Constraint("DistanceX", -1, 1, 10, 1, 57.00808))
sketch5.addConstraint(Sketcher.Constraint("DistanceY", -1, 1, 14, 1, 39.26488))
sketch5.addConstraint(Sketcher.Constraint("DistanceY", -1, 1, 15, 2, 39.26488))
sketch5.addConstraint(Sketcher.Constraint("DistanceY", 4, 1, 3, 2, 5.95015))
sketch5.addConstraint(Sketcher.Constraint("DistanceX", 12, 1, 14, 3, 41.138469))
sketch5.addConstraint(Sketcher.Constraint("DistanceX", 12, 3, 13, 1, 41.138468))
sketch5.addConstraint(Sketcher.Constraint("DistanceX", 2, 1, -1, 1, 42.136407))
sketch5.addConstraint(Sketcher.Constraint("DistanceX", -1, 1, 8, 2, 42.136407))
pocket3 = body.newObject("PartDesign::Pocket", "Pocket002")
pocket3.Profile = sketch5
pocket3.Length = 25

# Sketch on XY plane
sketch6 = body.newObject("Sketcher::SketchObject", "Sketch005")
sketch6.AttachmentSupport = (doc.getObject("XY_Plane"), [""])
sketch6.MapMode = "FlatFace"
sketch6.AttachmentOffset = App.Placement(App.Vector(0, 0, 92), App.Rotation())
sketch6.addGeometry(Part.Circle(App.Vector(0, 0, 0), App.Vector(0, 0, 1), 72), False)
sketch6.addGeometry(Part.ArcOfCircle(Part.Circle(App.Vector(-0.000001, 0, 0), App.Vector(0, 0, 1), 57.499999), math.radians(-172.5), math.radians(-127.499999)), False)
sketch6.addGeometry(Part.ArcOfCircle(Part.Circle(App.Vector(-49.572243, -6.526309, 0), App.Vector(0, 0, 1), 7.5), math.radians(7.5), math.radians(187.5)), False)
sketch6.addGeometry(Part.ArcOfCircle(Part.Circle(App.Vector(0, 0, 0), App.Vector(0, 0, 1), 42.5), math.radians(-172.5), math.radians(-127.5)), False)
sketch6.addGeometry(Part.ArcOfCircle(Part.Circle(App.Vector(-30.438074, -39.667669, 0), App.Vector(0, 0, 1), 7.500003), math.radians(0.000015), math.radians(52.499997)), False)
sketch6.addGeometry(Part.ArcOfCircle(Part.Circle(App.Vector(-30.438071, -39.667667, 0), App.Vector(0, 0, 1), 7.5), math.radians(-127.500005), math.radians(0.000003)), False)
sketch6.addGeometry(Part.ArcOfCircle(Part.Circle(App.Vector(0.000001, 0, 0), App.Vector(0, 0, 1), 57.499999), math.radians(-52.500001), math.radians(-7.5)), False)
sketch6.addGeometry(Part.ArcOfCircle(Part.Circle(App.Vector(30.438071, -39.667667, 0), App.Vector(0, 0, 1), 7.5), math.radians(127.499994), math.radians(307.500004)), False)
sketch6.addGeometry(Part.ArcOfCircle(Part.Circle(App.Vector(0, 0, 0), App.Vector(0, 0, 1), 42.5), math.radians(-52.5), math.radians(-7.5)), False)
sketch6.addGeometry(Part.ArcOfCircle(Part.Circle(App.Vector(49.572243, -6.52631, 0), App.Vector(0, 0, 1), 7.5), math.radians(-0.000002), math.radians(172.499998)), False)
sketch6.addGeometry(Part.ArcOfCircle(Part.Circle(App.Vector(49.572152, -6.526308, 0), App.Vector(0, 0, 1), 7.500091), math.radians(-7.499923), math.radians(-0.000017)), False)
sketch6.addGeometry(Part.Circle(App.Vector(0, 0, 0), App.Vector(0, 0, 1), 35), False)
sketch6.addGeometry(Part.ArcOfCircle(Part.Circle(App.Vector(-19.134172, 46.193976, 0), App.Vector(0, 0, 1), 7.5), math.radians(112.499998), math.radians(292.499998)), False)
sketch6.addGeometry(Part.ArcOfCircle(Part.Circle(App.Vector(0, 0.000003, 0), App.Vector(0, 0, 1), 57.499997), math.radians(67.499999), math.radians(112.500001)), False)
sketch6.addGeometry(Part.ArcOfCircle(Part.Circle(App.Vector(19.134172, 46.193976, 0), App.Vector(0, 0, 1), 7.5), math.radians(-112.499998), math.radians(67.500002)), False)
sketch6.addGeometry(Part.ArcOfCircle(Part.Circle(App.Vector(0, 0.000001, 0), App.Vector(0, 0, 1), 42.499999), math.radians(67.499999), math.radians(112.500001)), False)
sketch6.addConstraint(Sketcher.Constraint("Coincident", 1, 1, 2, 2))
sketch6.addConstraint(Sketcher.Constraint("Coincident", 2, 1, 3, 1))
sketch6.addConstraint(Sketcher.Constraint("Coincident", 3, 2, 4, 2))
sketch6.addConstraint(Sketcher.Constraint("Coincident", 4, 1, 5, 2))
sketch6.addConstraint(Sketcher.Constraint("Coincident", 5, 1, 1, 2))
sketch6.addConstraint(Sketcher.Constraint("Coincident", 6, 1, 7, 2))
sketch6.addConstraint(Sketcher.Constraint("Coincident", 7, 1, 8, 1))
sketch6.addConstraint(Sketcher.Constraint("Coincident", 8, 2, 9, 2))
sketch6.addConstraint(Sketcher.Constraint("Coincident", 9, 1, 10, 2))
sketch6.addConstraint(Sketcher.Constraint("Coincident", 10, 1, 6, 2))
sketch6.addConstraint(Sketcher.Constraint("Coincident", 12, 1, 13, 2))
sketch6.addConstraint(Sketcher.Constraint("Coincident", 13, 1, 14, 2))
sketch6.addConstraint(Sketcher.Constraint("Coincident", 14, 1, 15, 1))
sketch6.addConstraint(Sketcher.Constraint("Coincident", 15, 2, 12, 2))
sketch6.addConstraint(Sketcher.Constraint("Coincident", 0, 3, -1, 1))
sketch6.addConstraint(Sketcher.Constraint("Coincident", 1, 3, -1, 1))
sketch6.addConstraint(Sketcher.Constraint("Coincident", 3, 3, -1, 1))
sketch6.addConstraint(Sketcher.Constraint("Coincident", 6, 3, -1, 1))
sketch6.addConstraint(Sketcher.Constraint("Coincident", 8, 3, -1, 1))
sketch6.addConstraint(Sketcher.Constraint("Coincident", 11, 3, -1, 1))
sketch6.addConstraint(Sketcher.Constraint("Coincident", 13, 3, -1, 1))
sketch6.addConstraint(Sketcher.Constraint("Coincident", 15, 3, -1, 1))
sketch6.addConstraint(Sketcher.Constraint("Coincident", 5, 3, 4, 3))
sketch6.addConstraint(Sketcher.Constraint("Diameter", 0, 144.0))
sketch6.addConstraint(Sketcher.Constraint("Diameter", 11, 70.0))
sketch6.addConstraint(Sketcher.Constraint("Radius", 1, 57.499999))
sketch6.addConstraint(Sketcher.Constraint("Radius", 2, 7.5))
sketch6.addConstraint(Sketcher.Constraint("Radius", 6, 57.499999))
sketch6.addConstraint(Sketcher.Constraint("Radius", 7, 7.5))
sketch6.addConstraint(Sketcher.Constraint("Radius", 9, 7.5))
sketch6.addConstraint(Sketcher.Constraint("Radius", 12, 7.5))
sketch6.addConstraint(Sketcher.Constraint("Radius", 15, 42.499999))
sketch6.addConstraint(Sketcher.Constraint("Radius", 10, 7.500091))
sketch6.addConstraint(Sketcher.Constraint("DistanceY", 5, 1, 3, 2, 11.9003))
sketch6.addConstraint(Sketcher.Constraint("DistanceY", 6, 1, 7, 1, 11.9003))
sketch6.addConstraint(Sketcher.Constraint("DistanceY", 2, 3, -1, 1, 6.526309))
sketch6.addConstraint(Sketcher.Constraint("DistanceY", 4, 3, -1, 1, 39.667669))
sketch6.addConstraint(Sketcher.Constraint("DistanceX", -1, 1, 7, 3, 30.438071))
sketch6.addConstraint(Sketcher.Constraint("DistanceY", 9, 3, -1, 1, 6.52631))
sketch6.addConstraint(Sketcher.Constraint("DistanceX", 12, 3, -1, 1, 19.134172))
sketch6.addConstraint(Sketcher.Constraint("DistanceX", -1, 1, 14, 3, 19.134172))
sketch6.addConstraint(Sketcher.Constraint("DistanceX", 1, 1, -1, 1, 57.00808))
sketch6.addConstraint(Sketcher.Constraint("DistanceX", 3, 2, -1, 1, 25.872361))
sketch6.addConstraint(Sketcher.Constraint("DistanceX", -1, 1, 6, 1, 35.003782))
sketch6.addConstraint(Sketcher.Constraint("DistanceY", 9, 1, -1, 1, 6.52631))
sketch6.addConstraint(Sketcher.Constraint("DistanceX", -1, 1, 10, 1, 57.00808))
sketch6.addConstraint(Sketcher.Constraint("DistanceY", -1, 1, 14, 1, 39.26488))
sketch6.addConstraint(Sketcher.Constraint("DistanceY", -1, 1, 15, 2, 39.26488))
sketch6.addConstraint(Sketcher.Constraint("DistanceY", 4, 1, 3, 2, 5.95015))
sketch6.addConstraint(Sketcher.Constraint("DistanceX", 12, 1, 14, 3, 41.138469))
sketch6.addConstraint(Sketcher.Constraint("DistanceX", 12, 3, 13, 1, 41.138468))
sketch6.addConstraint(Sketcher.Constraint("DistanceX", 2, 1, -1, 1, 42.136407))
sketch6.addConstraint(Sketcher.Constraint("DistanceX", -1, 1, 8, 2, 42.136407))
pocket4 = body.newObject("PartDesign::Pocket", "Pocket003")
pocket4.Profile = sketch6
pocket4.Length = 30
body2 = doc.addObject("PartDesign::Body", "Body001")

# Sketch on XY plane
sketch7 = body2.newObject("Sketcher::SketchObject", "Sketch006")
sketch7.AttachmentSupport = (doc.getObject("XY_Plane001"), [""])
sketch7.MapMode = "FlatFace"
sketch7.addGeometry(Part.Circle(App.Vector(0, 0, 0), App.Vector(0, 0, 1), 24), False)
sketch7.addGeometry(Part.Circle(App.Vector(0, 0, 0), App.Vector(0, 0, 1), 20), False)
sketch7.addConstraint(Sketcher.Constraint("Coincident", 0, 3, -1, 1))
sketch7.addConstraint(Sketcher.Constraint("Coincident", 1, 3, -1, 1))
sketch7.addConstraint(Sketcher.Constraint("Diameter", 0, 48.0))
sketch7.addConstraint(Sketcher.Constraint("Diameter", 1, 40.0))
pad3 = body2.newObject("PartDesign::Pad", "Pad002")
pad3.Profile = sketch7
pad3.Length = 25

doc.recompute()
